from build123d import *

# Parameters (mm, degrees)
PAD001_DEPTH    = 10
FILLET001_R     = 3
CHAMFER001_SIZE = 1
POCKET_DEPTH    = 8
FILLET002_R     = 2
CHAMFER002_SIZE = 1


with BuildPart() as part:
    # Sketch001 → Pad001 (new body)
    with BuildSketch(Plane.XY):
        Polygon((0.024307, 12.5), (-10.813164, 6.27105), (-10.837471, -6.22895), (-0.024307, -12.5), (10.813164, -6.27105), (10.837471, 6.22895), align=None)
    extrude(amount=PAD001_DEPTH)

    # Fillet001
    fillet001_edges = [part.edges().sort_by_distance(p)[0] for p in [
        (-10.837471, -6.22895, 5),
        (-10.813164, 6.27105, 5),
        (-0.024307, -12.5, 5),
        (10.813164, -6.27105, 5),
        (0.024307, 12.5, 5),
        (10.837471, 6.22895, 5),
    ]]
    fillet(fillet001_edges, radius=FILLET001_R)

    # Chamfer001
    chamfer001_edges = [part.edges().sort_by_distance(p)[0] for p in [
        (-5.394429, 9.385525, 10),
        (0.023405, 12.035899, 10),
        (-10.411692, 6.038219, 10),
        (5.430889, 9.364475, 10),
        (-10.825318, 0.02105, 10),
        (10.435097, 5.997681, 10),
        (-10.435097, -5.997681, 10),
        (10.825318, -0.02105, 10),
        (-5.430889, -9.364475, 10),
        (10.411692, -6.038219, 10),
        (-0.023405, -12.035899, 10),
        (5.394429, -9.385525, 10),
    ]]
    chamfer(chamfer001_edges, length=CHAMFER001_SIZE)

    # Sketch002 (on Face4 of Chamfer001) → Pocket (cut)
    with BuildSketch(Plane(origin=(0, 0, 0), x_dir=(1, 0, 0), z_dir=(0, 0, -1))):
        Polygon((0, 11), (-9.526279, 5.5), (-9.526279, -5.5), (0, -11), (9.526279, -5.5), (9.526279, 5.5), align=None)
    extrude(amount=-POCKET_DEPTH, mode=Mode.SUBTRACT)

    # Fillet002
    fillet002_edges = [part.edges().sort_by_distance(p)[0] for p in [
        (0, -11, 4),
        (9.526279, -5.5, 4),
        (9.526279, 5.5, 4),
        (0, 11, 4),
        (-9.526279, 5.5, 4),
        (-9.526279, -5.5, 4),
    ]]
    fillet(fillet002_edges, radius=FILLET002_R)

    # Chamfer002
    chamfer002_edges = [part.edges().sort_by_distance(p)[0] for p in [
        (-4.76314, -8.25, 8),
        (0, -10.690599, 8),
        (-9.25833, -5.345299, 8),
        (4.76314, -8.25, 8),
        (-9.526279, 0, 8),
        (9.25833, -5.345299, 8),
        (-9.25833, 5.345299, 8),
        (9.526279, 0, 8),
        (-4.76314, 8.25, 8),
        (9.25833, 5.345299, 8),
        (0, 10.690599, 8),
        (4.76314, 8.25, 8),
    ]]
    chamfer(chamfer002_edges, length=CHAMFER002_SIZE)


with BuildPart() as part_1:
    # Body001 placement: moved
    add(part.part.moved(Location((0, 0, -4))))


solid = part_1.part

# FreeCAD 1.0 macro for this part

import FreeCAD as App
import Part
import Sketcher

V = App.Vector
Q = App.Units.Quantity


def edges_at(feature, points):
    """Names of the edges that pass closest to the given points."""
    edges = feature.Shape.Edges
    near = lambda p: min(range(len(edges)), key=lambda i: edges[i].distToShape(Part.Vertex(*p))[0])
    return sorted({f"Edge{near(p) + 1}" for p in points})


def add_polygon(sketch, points):
    """Adds a closed chain of lines whose ends are joined by coincident constraints."""
    first, n = sketch.GeometryCount, len(points)
    for a, b in zip(points, points[1:] + points[:1]):
        sketch.addGeometry(Part.LineSegment(App.Vector(*a, 0), App.Vector(*b, 0)), False)
    for i in range(n):
        sketch.addConstraint(Sketcher.Constraint("Coincident", first + i, 2, first + (i + 1) % n, 1))

doc = App.newDocument("Part")
body = doc.addObject("PartDesign::Body", "Body")

sketch1 = body.newObject("Sketcher::SketchObject", "Sketch")
sketch1.AttachmentSupport = (doc.getObject("XY_Plane"), [""])
sketch1.MapMode = "FlatFace"
add_polygon(sketch1, [(0, 12), (-11, 6), (-11, -6), (0, -12), (11, -6), (11, 6)])
sketch1.addConstraint([
    Sketcher.Constraint("Symmetric", 0, 2, 3, 2, -1, 1),
    Sketcher.Constraint("Symmetric", 1, 2, 4, 2, -1, 1),
    Sketcher.Constraint("Symmetric", 2, 2, 5, 2, -1, 1),
    Sketcher.Constraint("Equal", 0, 1),
    Sketcher.Constraint("Equal", 1, 2),
    Sketcher.Constraint("DistanceY", 2, 2, 5, 2, 25.0),
    Sketcher.Constraint("DistanceY", 1, 2, 0, 2, 12.5),
    Sketcher.Constraint("DistanceY", 3, 2, 1, 2, 0.0421),
    Sketcher.Constraint("DistanceX", 1, 2, -1, 1, 10.837471),
])
pad1 = body.newObject("PartDesign::Pad", "Pad")
pad1.Profile = sketch1
pad1.Length = 10
doc.recompute()

fillet = body.newObject("PartDesign::Fillet", "Fillet")
fillet.Base = (pad1, edges_at(pad1, [
    (-10.837, -6.229, 5),
    (-10.813, 6.271, 5),
    (-0.024, -12.5, 5),
    (10.813, -6.271, 5),
    (0.024, 12.5, 5),
    (10.837, 6.229, 5),
]))
fillet.Radius = 3
doc.recompute()

chamfer = body.newObject("PartDesign::Chamfer", "Chamfer")
chamfer.Base = (fillet, edges_at(fillet, [
    (-5.394, 9.386, 10),
    (0.023, 12.036, 10),
    (-10.412, 6.038, 10),
    (5.431, 9.364, 10),
    (-10.825, 0.021, 10),
    (10.435, 5.998, 10),
    (-10.435, -5.998, 10),
    (10.825, -0.021, 10),
    (-5.431, -9.364, 10),
    (10.412, -6.038, 10),
    (-0.023, -12.036, 10),
    (5.394, -9.386, 10),
]))
chamfer.Size = 1

sketch2 = body.newObject("Sketcher::SketchObject", "Sketch001")
sketch2.AttachmentSupport = (doc.getObject("XY_Plane"), [""])
sketch2.MapMode = "FlatFace"
add_polygon(sketch2, [(0, -11), (-10, -6), (-10, 6), (0, 11), (10, 6), (10, -6)])
sketch2.addConstraint([
    Sketcher.Constraint("Vertical", 1),
    Sketcher.Constraint("Vertical", 4),
    Sketcher.Constraint("Symmetric", 0, 2, 3, 2, -1, 1),
    Sketcher.Constraint("Symmetric", 2, 2, 5, 2, -1, 1),
    Sketcher.Constraint("PointOnObject", 2, 2, -2),
    Sketcher.Constraint("Parallel", 2, 5),
    Sketcher.Constraint("Horizontal", 1, 2, 3, 2),
    Sketcher.Constraint("DistanceY", 1, 1, 1, 2, 11.0),
    Sketcher.Constraint("Angle", 0, Q("149.999999 deg")),
    Sketcher.Constraint("Distance", 0, 11.0),
])
pocket1 = body.newObject("PartDesign::Pocket", "Pocket")
pocket1.Profile = sketch2
pocket1.Length = 8
pocket1.Reversed = True
doc.recompute()

fillet2 = body.newObject("PartDesign::Fillet", "Fillet001")
fillet2.Base = (pocket1, edges_at(pocket1, [
    (0, -11, 4),
    (9.526, -5.5, 4),
    (9.526, 5.5, 4),
    (0, 11, 4),
    (-9.526, 5.5, 4),
    (-9.526, -5.5, 4),
]))
fillet2.Radius = 2
doc.recompute()

chamfer2 = body.newObject("PartDesign::Chamfer", "Chamfer001")
chamfer2.Base = (fillet2, edges_at(fillet2, [
    (-4.763, -8.25, 8),
    (0, -10.691, 8),
    (-9.258, -5.345, 8),
    (4.763, -8.25, 8),
    (-9.526, 0, 8),
    (9.258, -5.345, 8),
    (-9.258, 5.345, 8),
    (9.526, 0, 8),
    (-4.763, 8.25, 8),
    (9.258, 5.345, 8),
    (0, 10.691, 8),
    (4.763, 8.25, 8),
]))
chamfer2.Size = 1
body2 = doc.addObject("PartDesign::Body", "Body001")
doc.recompute()

body.Placement = App.Placement(V(0, 0, -4), App.Rotation(V(0, 0, 1), 0))
boolean = body2.newObject("PartDesign::Boolean", "Boolean")
boolean.Type = "Fuse"
boolean.addObjects([body])

doc.recompute()
